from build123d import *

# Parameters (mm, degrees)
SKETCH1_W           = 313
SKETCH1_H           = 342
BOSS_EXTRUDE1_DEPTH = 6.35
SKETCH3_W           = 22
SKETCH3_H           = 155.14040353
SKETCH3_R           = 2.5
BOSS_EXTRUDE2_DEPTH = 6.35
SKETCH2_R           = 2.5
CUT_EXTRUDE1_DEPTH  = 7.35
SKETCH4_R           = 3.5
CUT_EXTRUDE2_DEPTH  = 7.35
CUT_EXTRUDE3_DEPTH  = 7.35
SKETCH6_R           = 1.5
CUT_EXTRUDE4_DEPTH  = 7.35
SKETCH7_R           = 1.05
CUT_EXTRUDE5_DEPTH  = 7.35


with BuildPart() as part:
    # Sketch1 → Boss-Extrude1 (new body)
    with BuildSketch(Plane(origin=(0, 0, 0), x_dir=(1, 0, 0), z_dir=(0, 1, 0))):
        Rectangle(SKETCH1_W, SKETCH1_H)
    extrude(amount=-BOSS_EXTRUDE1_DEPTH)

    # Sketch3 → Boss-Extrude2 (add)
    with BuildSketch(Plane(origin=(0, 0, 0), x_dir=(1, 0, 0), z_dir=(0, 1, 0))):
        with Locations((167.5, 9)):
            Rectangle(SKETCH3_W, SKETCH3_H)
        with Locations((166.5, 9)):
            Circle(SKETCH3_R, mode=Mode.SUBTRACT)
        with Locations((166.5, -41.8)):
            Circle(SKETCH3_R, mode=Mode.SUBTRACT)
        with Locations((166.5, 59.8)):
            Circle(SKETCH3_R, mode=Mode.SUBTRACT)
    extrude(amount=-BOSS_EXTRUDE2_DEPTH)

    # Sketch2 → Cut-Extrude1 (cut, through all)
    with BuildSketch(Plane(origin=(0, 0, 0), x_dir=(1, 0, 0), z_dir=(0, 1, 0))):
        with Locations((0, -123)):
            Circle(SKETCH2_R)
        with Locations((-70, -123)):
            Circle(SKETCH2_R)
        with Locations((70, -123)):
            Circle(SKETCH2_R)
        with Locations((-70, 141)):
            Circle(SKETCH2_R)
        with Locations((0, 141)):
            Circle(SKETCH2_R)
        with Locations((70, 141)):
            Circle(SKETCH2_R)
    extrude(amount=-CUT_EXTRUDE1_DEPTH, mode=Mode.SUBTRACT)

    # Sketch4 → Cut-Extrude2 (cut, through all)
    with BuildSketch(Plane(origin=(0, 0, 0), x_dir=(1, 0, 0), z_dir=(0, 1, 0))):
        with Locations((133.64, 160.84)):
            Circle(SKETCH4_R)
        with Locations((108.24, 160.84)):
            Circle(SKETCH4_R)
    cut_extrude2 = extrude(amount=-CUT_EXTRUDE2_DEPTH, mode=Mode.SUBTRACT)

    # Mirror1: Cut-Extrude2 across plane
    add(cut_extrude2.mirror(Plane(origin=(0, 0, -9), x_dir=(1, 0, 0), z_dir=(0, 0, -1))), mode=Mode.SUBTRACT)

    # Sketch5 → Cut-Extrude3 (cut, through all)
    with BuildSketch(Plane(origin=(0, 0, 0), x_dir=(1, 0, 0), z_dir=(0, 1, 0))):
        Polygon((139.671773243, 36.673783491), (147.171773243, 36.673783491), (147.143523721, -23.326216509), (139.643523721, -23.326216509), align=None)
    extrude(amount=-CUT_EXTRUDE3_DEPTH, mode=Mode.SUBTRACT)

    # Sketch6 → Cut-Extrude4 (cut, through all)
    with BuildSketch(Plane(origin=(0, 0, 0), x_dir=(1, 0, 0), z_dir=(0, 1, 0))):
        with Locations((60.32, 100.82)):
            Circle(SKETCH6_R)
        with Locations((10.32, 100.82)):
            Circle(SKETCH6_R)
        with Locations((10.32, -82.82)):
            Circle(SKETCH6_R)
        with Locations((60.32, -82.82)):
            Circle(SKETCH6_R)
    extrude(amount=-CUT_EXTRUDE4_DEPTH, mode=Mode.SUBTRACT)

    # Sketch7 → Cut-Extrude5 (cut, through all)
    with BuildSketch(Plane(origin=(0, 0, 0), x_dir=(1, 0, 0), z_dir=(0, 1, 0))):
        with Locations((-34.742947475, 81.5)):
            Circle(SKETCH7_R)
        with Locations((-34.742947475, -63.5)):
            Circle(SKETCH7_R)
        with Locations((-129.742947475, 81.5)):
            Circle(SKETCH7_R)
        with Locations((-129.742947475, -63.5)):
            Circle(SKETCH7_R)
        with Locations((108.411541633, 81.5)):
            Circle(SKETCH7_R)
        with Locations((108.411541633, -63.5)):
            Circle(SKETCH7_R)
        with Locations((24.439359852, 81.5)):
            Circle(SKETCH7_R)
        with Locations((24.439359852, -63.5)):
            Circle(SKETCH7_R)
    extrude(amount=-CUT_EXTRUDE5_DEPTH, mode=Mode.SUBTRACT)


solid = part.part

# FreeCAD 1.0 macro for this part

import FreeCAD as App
import Part
import Sketcher

V = App.Vector
Q = App.Units.Quantity

doc = App.newDocument("Part")
body = doc.addObject("PartDesign::Body", "Body")

# Sketch on XZ plane
sketch1 = body.newObject("Sketcher::SketchObject", "Sketch")
sketch1.AttachmentSupport = (doc.getObject("XZ_Plane"), [""])
sketch1.MapMode = "FlatFace"
sketch1.addGeometry([
    Part.LineSegment(V(-156.5, -171, 0), V(-156.5, 171, 0)),
    Part.LineSegment(V(-156.5, 171, 0), V(156.5, 171, 0)),
    Part.LineSegment(V(156.5, 171, 0), V(156.5, -171, 0)),
    Part.LineSegment(V(156.5, -171, 0), V(-156.5, -171, 0)),
], False)
sketch1.addConstraint([
    Sketcher.Constraint("Coincident", 0, 2, 1, 1),
    Sketcher.Constraint("Coincident", 1, 2, 2, 1),
    Sketcher.Constraint("Coincident", 2, 2, 3, 1),
    Sketcher.Constraint("Coincident", 3, 2, 0, 1),
    Sketcher.Constraint("Vertical", 0),
    Sketcher.Constraint("Horizontal", 1),
    Sketcher.Constraint("Vertical", 2),
    Sketcher.Constraint("Horizontal", 3),
    Sketcher.Constraint("Symmetric", 0, 2, 2, 2, -1, 1),
    Sketcher.Constraint("DistanceX", 1, 1, 1, 2, Q("313 mm")),
    Sketcher.Constraint("DistanceY", 0, 1, 0, 2, Q("342 mm")),
])
pad1 = body.newObject("PartDesign::Pad", "Pad")
pad1.Profile = sketch1
pad1.Length = 6.35

# Sketch on XZ plane
sketch2 = body.newObject("Sketcher::SketchObject", "Sketch001")
sketch2.AttachmentSupport = (doc.getObject("XZ_Plane"), [""])
sketch2.MapMode = "FlatFace"
sketch2.addGeometry([
    Part.LineSegment(V(156.5, -86.570202, 0), V(156.5, 68.570202, 0)),  # 0
    Part.LineSegment(V(156.5, 68.570202, 0), V(178.5, 68.570202, 0)),  # 1
    Part.LineSegment(V(178.5, 68.570202, 0), V(178.5, -86.570202, 0)),  # 2
    Part.LineSegment(V(178.5, -86.570202, 0), V(156.5, -86.570202, 0)),  # 3
    Part.Circle(V(166.5, 41.8, 0), V(0, 0, 1), 2.5),  # 4
    Part.Circle(V(166.5, -9, 0), V(0, 0, 1), 2.5),  # 5
    Part.Circle(V(166.5, -59.8, 0), V(0, 0, 1), 2.5),  # 6
], False)
sketch2.addConstraint([
    Sketcher.Constraint("Coincident", 0, 2, 1, 1),
    Sketcher.Constraint("Coincident", 1, 2, 2, 1),
    Sketcher.Constraint("Coincident", 2, 2, 3, 1),
    Sketcher.Constraint("Coincident", 3, 2, 0, 1),
    Sketcher.Constraint("Vertical", 0),
    Sketcher.Constraint("Horizontal", 1),
    Sketcher.Constraint("Vertical", 2),
    Sketcher.Constraint("Horizontal", 3),
    Sketcher.Constraint("Equal", 4, 5),
    Sketcher.Constraint("Equal", 5, 6),
    Sketcher.Constraint("Vertical", 4, 3, 5, 3),
    Sketcher.Constraint("Vertical", 5, 3, 6, 3),
    Sketcher.Constraint("Diameter", 4, Q("5 mm")),
    Sketcher.Constraint("DistanceX", 1, 1, 1, 2, Q("22 mm")),
    Sketcher.Constraint("DistanceY", 5, 3, -1, 1, Q("9 mm")),
    Sketcher.Constraint("DistanceX", 0, 2, 4, 3, Q("10 mm")),
    Sketcher.Constraint("DistanceX", -1, 1, 4, 3, Q("166.5 mm")),
    Sketcher.Constraint("DistanceY", -1, 1, 4, 3, Q("41.8 mm")),
    Sketcher.Constraint("DistanceY", 6, 3, -1, 1, Q("59.8 mm")),
    Sketcher.Constraint("DistanceY", -1, 1, 0, 2, Q("68.570202 mm")),
    Sketcher.Constraint("DistanceY", 2, 2, -1, 1, Q("86.570202 mm")),
])
pad2 = body.newObject("PartDesign::Pad", "Pad001")
pad2.Profile = sketch2
pad2.Length = 6.35

# Sketch on XZ plane
sketch3 = body.newObject("Sketcher::SketchObject", "Sketch002")
sketch3.AttachmentSupport = (doc.getObject("XZ_Plane"), [""])
sketch3.MapMode = "FlatFace"
sketch3.addGeometry([
    Part.Circle(V(0, 123, 0), V(0, 0, 1), 2.5),  # 0
    Part.Circle(V(-70, 123, 0), V(0, 0, 1), 2.5),  # 1
    Part.Circle(V(70, 123, 0), V(0, 0, 1), 2.5),  # 2
    Part.Circle(V(-70, -141, 0), V(0, 0, 1), 2.5),  # 3
    Part.Circle(V(0, -141, 0), V(0, 0, 1), 2.5),  # 4
    Part.Circle(V(70, -141, 0), V(0, 0, 1), 2.5),  # 5
], False)
sketch3.addConstraint([
    Sketcher.Constraint("Equal", 0, 1),
    Sketcher.Constraint("Equal", 1, 2),
    Sketcher.Constraint("Equal", 2, 3),
    Sketcher.Constraint("Equal", 3, 4),
    Sketcher.Constraint("Equal", 4, 5),
    Sketcher.Constraint("Symmetric", 1, 3, 2, 3, -2),
    Sketcher.Constraint("Symmetric", 3, 3, 5, 3, -2),
    Sketcher.Constraint("PointOnObject", 0, 3, -2),
    Sketcher.Constraint("PointOnObject", 4, 3, -2),
    Sketcher.Constraint("Horizontal", 0, 3, 1, 3),
    Sketcher.Constraint("Horizontal", 3, 3, 4, 3),
    Sketcher.Constraint("Vertical", 1, 3, 3, 3),
    Sketcher.Constraint("Diameter", 0, Q("5 mm")),
    Sketcher.Constraint("DistanceY", -1, 1, 0, 3, Q("123 mm")),
    Sketcher.Constraint("DistanceX", 1, 3, -1, 1, Q("70 mm")),
    Sketcher.Constraint("DistanceY", 3, 3, -1, 1, Q("141 mm")),
])
pocket1 = body.newObject("PartDesign::Pocket", "Pocket")
pocket1.Profile = sketch3
pocket1.Type = "ThroughAll"
pocket1.Reversed = True

# Sketch on XZ plane
sketch4 = body.newObject("Sketcher::SketchObject", "Sketch003")
sketch4.AttachmentSupport = (doc.getObject("XZ_Plane"), [""])
sketch4.MapMode = "FlatFace"
sketch4.addGeometry([
    Part.Circle(V(133.64, -160.84, 0), V(0, 0, 1), 3.5),
    Part.Circle(V(108.24, -160.84, 0), V(0, 0, 1), 3.5),
], False)
sketch4.addConstraint([
    Sketcher.Constraint("Equal", 0, 1),
    Sketcher.Constraint("Horizontal", 0, 3, 1, 3),
    Sketcher.Constraint("Diameter", 0, Q("7 mm")),
    Sketcher.Constraint("DistanceX", 1, 3, 0, 3, Q("25.4 mm")),
    Sketcher.Constraint("DistanceX", -1, 1, 0, 3, Q("133.64 mm")),
    Sketcher.Constraint("DistanceY", 0, 3, -1, 1, Q("160.84 mm")),
])
pocket2 = body.newObject("PartDesign::Pocket", "Pocket001")
pocket2.Profile = sketch4
pocket2.Type = "ThroughAll"
pocket2.Reversed = True
doc.recompute()

datumplane = body.newObject("PartDesign::Plane", "DatumPlane")
datumplane.AttachmentSupport = (doc.getObject("XY_Plane"), [""])
datumplane.MapMode = "FlatFace"
datumplane.AttachmentOffset = App.Placement(V(0, 0, -9), App.Rotation())
mirrored = body.newObject("PartDesign::Mirrored", "Mirrored")
mirrored.Originals = [pocket2]
mirrored.MirrorPlane = (datumplane, [""])
body.Tip = mirrored

# Sketch on XZ plane
sketch5 = body.newObject("Sketcher::SketchObject", "Sketch004")
sketch5.AttachmentSupport = (doc.getObject("XZ_Plane"), [""])
sketch5.MapMode = "FlatFace"
sketch5.addGeometry([
    Part.LineSegment(V(147.171773, -36.673783, 0), V(139.671773, -36.673783, 0)),
    Part.LineSegment(V(139.671773, -36.673783, 0), V(139.643524, 23.326217, 0)),
    Part.LineSegment(V(139.643524, 23.326217, 0), V(147.143524, 23.326217, 0)),
    Part.LineSegment(V(147.143524, 23.326217, 0), V(147.171773, -36.673783, 0)),
], False)
sketch5.addConstraint([
    Sketcher.Constraint("Coincident", 0, 2, 1, 1),
    Sketcher.Constraint("Coincident", 1, 2, 2, 1),
    Sketcher.Constraint("Coincident", 2, 2, 3, 1),
    Sketcher.Constraint("Coincident", 3, 2, 0, 1),
    Sketcher.Constraint("Horizontal", 0),
    Sketcher.Constraint("Horizontal", 2),
    Sketcher.Constraint("Parallel", 1, 3),
    Sketcher.Constraint("DistanceX", 0, 2, 0, 1, Q("7.5 mm")),
    Sketcher.Constraint("DistanceY", 0, 2, 1, 2, Q("60 mm")),
    Sketcher.Constraint("DistanceX", 1, 2, 0, 2, Q("0.02825 mm")),
    Sketcher.Constraint("DistanceX", -1, 1, 0, 2, Q("139.671773 mm")),
    Sketcher.Constraint("DistanceY", 0, 2, -1, 1, Q("36.673783 mm")),
])
pocket3 = body.newObject("PartDesign::Pocket", "Pocket002")
pocket3.Profile = sketch5
pocket3.Type = "ThroughAll"
pocket3.Reversed = True

# Sketch on XZ plane
sketch6 = body.newObject("Sketcher::SketchObject", "Sketch005")
sketch6.AttachmentSupport = (doc.getObject("XZ_Plane"), [""])
sketch6.MapMode = "FlatFace"
sketch6.addGeometry([
    Part.Circle(V(60.32, -100.82, 0), V(0, 0, 1), 1.5),
    Part.Circle(V(10.32, -100.82, 0), V(0, 0, 1), 1.5),
    Part.Circle(V(10.32, 82.82, 0), V(0, 0, 1), 1.5),
    Part.Circle(V(60.32, 82.82, 0), V(0, 0, 1), 1.5),
], False)
sketch6.addConstraint([
    Sketcher.Constraint("Equal", 0, 1),
    Sketcher.Constraint("Equal", 1, 2),
    Sketcher.Constraint("Equal", 2, 3),
    Sketcher.Constraint("Horizontal", 0, 3, 1, 3),
    Sketcher.Constraint("Horizontal", 2, 3, 3, 3),
    Sketcher.Constraint("Vertical", 1, 3, 2, 3),
    Sketcher.Constraint("Vertical", 0, 3, 3, 3),
    Sketcher.Constraint("Diameter", 0, Q("3 mm")),
    Sketcher.Constraint("DistanceX", 1, 3, 0, 3, Q("50 mm")),
    Sketcher.Constraint("DistanceX", -1, 1, 0, 3, Q("60.32 mm")),
    Sketcher.Constraint("DistanceY", 0, 3, -1, 1, Q("100.82 mm")),
    Sketcher.Constraint("DistanceY", -1, 1, 2, 3, Q("82.82 mm")),
])
pocket4 = body.newObject("PartDesign::Pocket", "Pocket003")
pocket4.Profile = sketch6
pocket4.Type = "ThroughAll"
pocket4.Reversed = True

# Sketch on XZ plane
sketch7 = body.newObject("Sketcher::SketchObject", "Sketch006")
sketch7.AttachmentSupport = (doc.getObject("XZ_Plane"), [""])
sketch7.MapMode = "FlatFace"
sketch7.addGeometry([
    Part.Circle(V(-34.742947, -81.5, 0), V(0, 0, 1), 1.05),  # 0
    Part.Circle(V(-34.742947, 63.5, 0), V(0, 0, 1), 1.05),  # 1
    Part.Circle(V(-129.742947, -81.5, 0), V(0, 0, 1), 1.05),  # 2
    Part.Circle(V(-129.742947, 63.5, 0), V(0, 0, 1), 1.05),  # 3
    Part.Circle(V(108.411542, -81.5, 0), V(0, 0, 1), 1.05),  # 4
    Part.Circle(V(108.411542, 63.5, 0), V(0, 0, 1), 1.05),  # 5
    Part.Circle(V(24.43936, -81.5, 0), V(0, 0, 1), 1.05),  # 6
    Part.Circle(V(24.43936, 63.5, 0), V(0, 0, 1), 1.05),  # 7
], False)
sketch7.addConstraint([
    Sketcher.Constraint("Equal", 0, 1),
    Sketcher.Constraint("Equal", 1, 2),
    Sketcher.Constraint("Equal", 2, 3),
    Sketcher.Constraint("Equal", 3, 4),
    Sketcher.Constraint("Equal", 4, 5),
    Sketcher.Constraint("Equal", 5, 6),
    Sketcher.Constraint("Equal", 6, 7),
    Sketcher.Constraint("Horizontal", 0, 3, 2, 3),
    Sketcher.Constraint("Horizontal", 1, 3, 3, 3),
    Sketcher.Constraint("Horizontal", 2, 3, 4, 3),
    Sketcher.Constraint("Horizontal", 3, 3, 5, 3),
    Sketcher.Constraint("Horizontal", 4, 3, 6, 3),
    Sketcher.Constraint("Horizontal", 5, 3, 7, 3),
    Sketcher.Constraint("Vertical", 0, 3, 1, 3),
    Sketcher.Constraint("Vertical", 2, 3, 3, 3),
    Sketcher.Constraint("Vertical", 4, 3, 5, 3),
    Sketcher.Constraint("Vertical", 6, 3, 7, 3),
    Sketcher.Constraint("Diameter", 0, Q("2.1 mm")),
    Sketcher.Constraint("DistanceY", 0, 3, 1, 3, Q("145 mm")),
    Sketcher.Constraint("DistanceX", 2, 3, 0, 3, Q("95 mm")),
    Sketcher.Constraint("DistanceY", 0, 3, -1, 1, Q("81.5 mm")),
    Sketcher.Constraint("DistanceX", -1, 1, 4, 3, Q("108.411542 mm")),
    Sketcher.Constraint("DistanceX", -1, 1, 6, 3, Q("24.43936 mm")),
    Sketcher.Constraint("DistanceX", 0, 3, 4, 3, Q("143.154489 mm")),
])
pocket5 = body.newObject("PartDesign::Pocket", "Pocket004")
pocket5.Profile = sketch7
pocket5.Type = "ThroughAll"
pocket5.Reversed = True

doc.recompute()
